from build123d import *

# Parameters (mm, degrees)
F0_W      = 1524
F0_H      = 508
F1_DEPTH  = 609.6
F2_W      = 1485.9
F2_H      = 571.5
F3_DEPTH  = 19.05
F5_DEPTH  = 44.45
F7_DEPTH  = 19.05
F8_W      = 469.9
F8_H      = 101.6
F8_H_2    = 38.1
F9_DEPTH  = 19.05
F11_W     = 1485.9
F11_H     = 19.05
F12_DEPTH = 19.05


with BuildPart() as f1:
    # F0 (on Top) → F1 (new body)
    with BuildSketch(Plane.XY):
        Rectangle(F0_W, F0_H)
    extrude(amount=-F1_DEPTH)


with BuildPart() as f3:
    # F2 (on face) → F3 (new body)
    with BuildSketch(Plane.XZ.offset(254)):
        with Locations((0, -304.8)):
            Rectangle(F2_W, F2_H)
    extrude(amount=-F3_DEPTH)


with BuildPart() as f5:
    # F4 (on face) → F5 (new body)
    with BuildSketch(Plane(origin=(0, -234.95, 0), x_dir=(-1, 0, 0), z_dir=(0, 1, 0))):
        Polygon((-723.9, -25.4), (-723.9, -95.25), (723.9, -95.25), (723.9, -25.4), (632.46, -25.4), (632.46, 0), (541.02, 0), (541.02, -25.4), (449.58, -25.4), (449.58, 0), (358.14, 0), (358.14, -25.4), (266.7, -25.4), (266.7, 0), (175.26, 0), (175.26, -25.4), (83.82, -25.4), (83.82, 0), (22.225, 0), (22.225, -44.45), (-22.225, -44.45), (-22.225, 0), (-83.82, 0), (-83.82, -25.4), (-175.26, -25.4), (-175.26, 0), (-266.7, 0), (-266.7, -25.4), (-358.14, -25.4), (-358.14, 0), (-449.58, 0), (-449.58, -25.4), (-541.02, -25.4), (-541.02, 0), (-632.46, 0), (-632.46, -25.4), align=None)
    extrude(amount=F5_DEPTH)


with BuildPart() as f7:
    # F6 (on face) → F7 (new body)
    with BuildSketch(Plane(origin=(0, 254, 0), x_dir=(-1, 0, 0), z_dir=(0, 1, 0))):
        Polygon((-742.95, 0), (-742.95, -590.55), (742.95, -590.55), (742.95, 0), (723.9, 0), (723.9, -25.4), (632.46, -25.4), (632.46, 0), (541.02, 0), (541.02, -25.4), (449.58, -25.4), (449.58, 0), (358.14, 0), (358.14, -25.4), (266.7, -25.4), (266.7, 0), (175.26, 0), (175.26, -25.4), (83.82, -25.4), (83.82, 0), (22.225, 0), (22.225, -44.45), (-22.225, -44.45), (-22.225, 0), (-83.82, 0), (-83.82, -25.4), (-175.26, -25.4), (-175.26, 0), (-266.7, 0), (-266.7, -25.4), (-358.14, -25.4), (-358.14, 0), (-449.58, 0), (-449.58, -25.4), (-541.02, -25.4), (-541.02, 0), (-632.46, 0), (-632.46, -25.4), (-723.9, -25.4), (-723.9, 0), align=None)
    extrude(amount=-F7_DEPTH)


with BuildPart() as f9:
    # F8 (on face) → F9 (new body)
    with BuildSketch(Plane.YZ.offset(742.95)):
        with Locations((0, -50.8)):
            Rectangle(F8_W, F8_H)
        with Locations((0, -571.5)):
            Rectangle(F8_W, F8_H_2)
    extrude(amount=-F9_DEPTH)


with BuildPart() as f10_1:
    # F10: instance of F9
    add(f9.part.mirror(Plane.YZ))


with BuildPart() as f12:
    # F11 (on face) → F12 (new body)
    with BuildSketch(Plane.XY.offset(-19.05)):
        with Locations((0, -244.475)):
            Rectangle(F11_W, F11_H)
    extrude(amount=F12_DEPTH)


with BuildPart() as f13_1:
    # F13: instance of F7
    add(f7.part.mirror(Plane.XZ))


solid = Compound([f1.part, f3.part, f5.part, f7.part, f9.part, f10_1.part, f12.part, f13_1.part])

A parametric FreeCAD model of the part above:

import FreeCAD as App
import Part
import Sketcher

V = App.Vector
Q = App.Units.Quantity

doc = App.newDocument("Part")
params = doc.addObject("Spreadsheet::Sheet", "Params")
for row, (alias, value) in enumerate([
    ("sketch1_width", "60 in"),
    ("sketch1_height", "20 in"),
    ("pad1_length", "24 in"),
    ("sketch2_width", "58.5 in"),
    ("sketch2_height", "22.5 in"),
    ("pad2_length", "0.75 in"),
    ("sketch3_width", "57 in"),
    ("sketch3_height", "1 in"),
    ("sketch3_width2", "3.6 in"),
    ("sketch3_width3", "1.75 in"),
    ("sketch3_height2", "2.75 in"),
    ("pad3_length", "1.75 in"),
    ("sketch4_height", "1 in"),
    ("sketch4_width", "58.5 in"),
    ("sketch4_width2", "3.6 in"),
    ("sketch4_width3", "0.75 in"),
    ("sketch4_width4", "1.75 in"),
    ("pad4_length", "0.75 in"),
    ("sketch5_height", "4 in"),
    ("sketch5_width", "18.5 in"),
    ("sketch5_height2", "1.5 in"),
    ("pad5_length", "0.75 in"),
    ("sketch6_width", "58.5 in"),
    ("sketch6_height", "0.75 in"),
    ("pad6_length", "0.75 in"),
], start=1):
    params.set(f"A{row}", alias)
    params.set(f"B{row}", "=" + value)
    params.setAlias(f"B{row}", alias)

body = doc.addObject("PartDesign::Body", "Body")

# Sketch on XY plane
sketch1 = body.newObject("Sketcher::SketchObject", "Sketch")
sketch1.AttachmentSupport = (doc.getObject("XY_Plane"), [""])
sketch1.MapMode = "FlatFace"
sketch1.addGeometry(Part.LineSegment(V(-762, 254, 0), V(-762, -254, 0)), False)
sketch1.addGeometry(Part.LineSegment(V(-762, -254, 0), V(762, -254, 0)), False)
sketch1.addGeometry(Part.LineSegment(V(762, -254, 0), V(762, 254, 0)), False)
sketch1.addGeometry(Part.LineSegment(V(762, 254, 0), V(-762, 254, 0)), False)
sketch1.addConstraint(Sketcher.Constraint("Coincident", 0, 2, 1, 1))
sketch1.addConstraint(Sketcher.Constraint("Coincident", 1, 2, 2, 1))
sketch1.addConstraint(Sketcher.Constraint("Coincident", 2, 2, 3, 1))
sketch1.addConstraint(Sketcher.Constraint("Coincident", 3, 2, 0, 1))
sketch1.addConstraint(Sketcher.Constraint("Vertical", 0))
sketch1.addConstraint(Sketcher.Constraint("Horizontal", 1))
sketch1.addConstraint(Sketcher.Constraint("Vertical", 2))
sketch1.addConstraint(Sketcher.Constraint("Horizontal", 3))
sketch1.addConstraint(Sketcher.Constraint("Symmetric", 0, 2, 2, 2, -1, 1))
sketch1.addConstraint(Sketcher.Constraint("DistanceX", 1, 1, 1, 2, Q("60 in")))
sketch1.addConstraint(Sketcher.Constraint("DistanceY", 0, 2, 0, 1, Q("20 in")))
sketch1.setExpression("Constraints[9]", "Params.sketch1_width")
sketch1.setExpression("Constraints[10]", "Params.sketch1_height")
pad1 = body.newObject("PartDesign::Pad", "Pad")
pad1.Profile = sketch1
pad1.setExpression("Length", "Params.pad1_length")
pad1.Reversed = True
body2 = doc.addObject("PartDesign::Body", "Body001")

# Sketch on XZ plane
sketch2 = body2.newObject("Sketcher::SketchObject", "Sketch001")
sketch2.AttachmentSupport = (doc.getObject("XZ_Plane001"), [""])
sketch2.MapMode = "FlatFace"
sketch2.AttachmentOffset = App.Placement(V(0, 0, 10 * 25.4), App.Rotation())
sketch2.addGeometry(Part.LineSegment(V(-742.95, -19.05, 0), V(-742.95, -590.55, 0)), False)
sketch2.addGeometry(Part.LineSegment(V(-742.95, -590.55, 0), V(742.95, -590.55, 0)), False)
sketch2.addGeometry(Part.LineSegment(V(742.95, -590.55, 0), V(742.95, -19.05, 0)), False)
sketch2.addGeometry(Part.LineSegment(V(742.95, -19.05, 0), V(-742.95, -19.05, 0)), False)
sketch2.addConstraint(Sketcher.Constraint("Coincident", 0, 2, 1, 1))
sketch2.addConstraint(Sketcher.Constraint("Coincident", 1, 2, 2, 1))
sketch2.addConstraint(Sketcher.Constraint("Coincident", 2, 2, 3, 1))
sketch2.addConstraint(Sketcher.Constraint("Coincident", 3, 2, 0, 1))
sketch2.addConstraint(Sketcher.Constraint("Vertical", 0))
sketch2.addConstraint(Sketcher.Constraint("Horizontal", 1))
sketch2.addConstraint(Sketcher.Constraint("Vertical", 2))
sketch2.addConstraint(Sketcher.Constraint("Horizontal", 3))
sketch2.addConstraint(Sketcher.Constraint("DistanceX", 1, 1, 1, 2, Q("58.5 in")))
sketch2.addConstraint(Sketcher.Constraint("DistanceY", 0, 2, 0, 1, Q("22.5 in")))
sketch2.addConstraint(Sketcher.Constraint("DistanceX", 0, 2, -1, 1, Q("29.25 in")))
sketch2.addConstraint(Sketcher.Constraint("DistanceY", 0, 2, -1, 1, Q("23.25 in")))
sketch2.setExpression("Constraints[8]", "Params.sketch2_width")
sketch2.setExpression("Constraints[9]", "Params.sketch2_height")
pad2 = body2.newObject("PartDesign::Pad", "Pad001")
pad2.Profile = sketch2
pad2.setExpression("Length", "Params.pad2_length")
pad2.Reversed = True
body3 = doc.addObject("PartDesign::Body", "Body002")

# Sketch on XZ plane
sketch3 = body3.newObject("Sketcher::SketchObject", "Sketch002")
sketch3.AttachmentSupport = (doc.getObject("XZ_Plane002"), [""])
sketch3.MapMode = "FlatFace"
sketch3.AttachmentOffset = App.Placement(V(0, 0, 9.25 * 25.4), App.Rotation())
sketch3.addGeometry(Part.LineSegment(V(723.9, -25.4, 0), V(723.9, -95.25, 0)), False)
sketch3.addGeometry(Part.LineSegment(V(723.9, -95.25, 0), V(-723.9, -95.25, 0)), False)
sketch3.addGeometry(Part.LineSegment(V(-723.9, -95.25, 0), V(-723.9, -25.4, 0)), False)
sketch3.addGeometry(Part.LineSegment(V(-723.9, -25.4, 0), V(-632.46, -25.4, 0)), False)
sketch3.addGeometry(Part.LineSegment(V(-632.46, -25.4, 0), V(-632.46, 0, 0)), False)
sketch3.addGeometry(Part.LineSegment(V(-632.46, 0, 0), V(-541.02, 0, 0)), False)
sketch3.addGeometry(Part.LineSegment(V(-541.02, 0, 0), V(-541.02, -25.4, 0)), False)
sketch3.addGeometry(Part.LineSegment(V(-541.02, -25.4, 0), V(-449.58, -25.4, 0)), False)
sketch3.addGeometry(Part.LineSegment(V(-449.58, -25.4, 0), V(-449.58, 0, 0)), False)
sketch3.addGeometry(Part.LineSegment(V(-449.58, 0, 0), V(-358.14, 0, 0)), False)
sketch3.addGeometry(Part.LineSegment(V(-358.14, 0, 0), V(-358.14, -25.4, 0)), False)
sketch3.addGeometry(Part.LineSegment(V(-358.14, -25.4, 0), V(-266.7, -25.4, 0)), False)
sketch3.addGeometry(Part.LineSegment(V(-266.7, -25.4, 0), V(-266.7, 0, 0)), False)
sketch3.addGeometry(Part.LineSegment(V(-266.7, 0, 0), V(-175.26, 0, 0)), False)
sketch3.addGeometry(Part.LineSegment(V(-175.26, 0, 0), V(-175.26, -25.4, 0)), False)
sketch3.addGeometry(Part.LineSegment(V(-175.26, -25.4, 0), V(-83.82, -25.4, 0)), False)
sketch3.addGeometry(Part.LineSegment(V(-83.82, -25.4, 0), V(-83.82, 0, 0)), False)
sketch3.addGeometry(Part.LineSegment(V(-83.82, 0, 0), V(-22.225, 0, 0)), False)
sketch3.addGeometry(Part.LineSegment(V(-22.225, 0, 0), V(-22.225, -44.45, 0)), False)
sketch3.addGeometry(Part.LineSegment(V(-22.225, -44.45, 0), V(22.225, -44.45, 0)), False)
sketch3.addGeometry(Part.LineSegment(V(22.225, -44.45, 0), V(22.225, 0, 0)), False)
sketch3.addGeometry(Part.LineSegment(V(22.225, 0, 0), V(83.82, 0, 0)), False)
sketch3.addGeometry(Part.LineSegment(V(83.82, 0, 0), V(83.82, -25.4, 0)), False)
sketch3.addGeometry(Part.LineSegment(V(83.82, -25.4, 0), V(175.26, -25.4, 0)), False)
sketch3.addGeometry(Part.LineSegment(V(175.26, -25.4, 0), V(175.26, 0, 0)), False)
sketch3.addGeometry(Part.LineSegment(V(175.26, 0, 0), V(266.7, 0, 0)), False)
sketch3.addGeometry(Part.LineSegment(V(266.7, 0, 0), V(266.7, -25.4, 0)), False)
sketch3.addGeometry(Part.LineSegment(V(266.7, -25.4, 0), V(358.14, -25.4, 0)), False)
sketch3.addGeometry(Part.LineSegment(V(358.14, -25.4, 0), V(358.14, 0, 0)), False)
sketch3.addGeometry(Part.LineSegment(V(358.14, 0, 0), V(449.58, 0, 0)), False)
sketch3.addGeometry(Part.LineSegment(V(449.58, 0, 0), V(449.58, -25.4, 0)), False)
sketch3.addGeometry(Part.LineSegment(V(449.58, -25.4, 0), V(541.02, -25.4, 0)), False)
sketch3.addGeometry(Part.LineSegment(V(541.02, -25.4, 0), V(541.02, 0, 0)), False)
sketch3.addGeometry(Part.LineSegment(V(541.02, 0, 0), V(632.46, 0, 0)), False)
sketch3.addGeometry(Part.LineSegment(V(632.46, 0, 0), V(632.46, -25.4, 0)), False)
sketch3.addGeometry(Part.LineSegment(V(632.46, -25.4, 0), V(723.9, -25.4, 0)), False)
sketch3.addConstraint(Sketcher.Constraint("Coincident", 0, 2, 1, 1))
sketch3.addConstraint(Sketcher.Constraint("Coincident", 1, 2, 2, 1))
sketch3.addConstraint(Sketcher.Constraint("Coincident", 2, 2, 3, 1))
sketch3.addConstraint(Sketcher.Constraint("Coincident", 3, 2, 4, 1))
sketch3.addConstraint(Sketcher.Constraint("Coincident", 4, 2, 5, 1))
sketch3.addConstraint(Sketcher.Constraint("Coincident", 5, 2, 6, 1))
sketch3.addConstraint(Sketcher.Constraint("Coincident", 6, 2, 7, 1))
sketch3.addConstraint(Sketcher.Constraint("Coincident", 7, 2, 8, 1))
sketch3.addConstraint(Sketcher.Constraint("Coincident", 8, 2, 9, 1))
sketch3.addConstraint(Sketcher.Constraint("Coincident", 9, 2, 10, 1))
sketch3.addConstraint(Sketcher.Constraint("Coincident", 10, 2, 11, 1))
sketch3.addConstraint(Sketcher.Constraint("Coincident", 11, 2, 12, 1))
sketch3.addConstraint(Sketcher.Constraint("Coincident", 12, 2, 13, 1))
sketch3.addConstraint(Sketcher.Constraint("Coincident", 13, 2, 14, 1))
sketch3.addConstraint(Sketcher.Constraint("Coincident", 14, 2, 15, 1))
sketch3.addConstraint(Sketcher.Constraint("Coincident", 15, 2, 16, 1))
sketch3.addConstraint(Sketcher.Constraint("Coincident", 16, 2, 17, 1))
sketch3.addConstraint(Sketcher.Constraint("Coincident", 17, 2, 18, 1))
sketch3.addConstraint(Sketcher.Constraint("Coincident", 18, 2, 19, 1))
sketch3.addConstraint(Sketcher.Constraint("Coincident", 19, 2, 20, 1))
sketch3.addConstraint(Sketcher.Constraint("Coincident", 20, 2, 21, 1))
sketch3.addConstraint(Sketcher.Constraint("Coincident", 21, 2, 22, 1))
sketch3.addConstraint(Sketcher.Constraint("Coincident", 22, 2, 23, 1))
sketch3.addConstraint(Sketcher.Constraint("Coincident", 23, 2, 24, 1))
sketch3.addConstraint(Sketcher.Constraint("Coincident", 24, 2, 25, 1))
sketch3.addConstraint(Sketcher.Constraint("Coincident", 25, 2, 26, 1))
sketch3.addConstraint(Sketcher.Constraint("Coincident", 26, 2, 27, 1))
sketch3.addConstraint(Sketcher.Constraint("Coincident", 27, 2, 28, 1))
sketch3.addConstraint(Sketcher.Constraint("Coincident", 28, 2, 29, 1))
sketch3.addConstraint(Sketcher.Constraint("Coincident", 29, 2, 30, 1))
sketch3.addConstraint(Sketcher.Constraint("Coincident", 30, 2, 31, 1))
sketch3.addConstraint(Sketcher.Constraint("Coincident", 31, 2, 32, 1))
sketch3.addConstraint(Sketcher.Constraint("Coincident", 32, 2, 33, 1))
sketch3.addConstraint(Sketcher.Constraint("Coincident", 33, 2, 34, 1))
sketch3.addConstraint(Sketcher.Constraint("Coincident", 34, 2, 35, 1))
sketch3.addConstraint(Sketcher.Constraint("Coincident", 35, 2, 0, 1))
sketch3.addConstraint(Sketcher.Constraint("Vertical", 0))
sketch3.addConstraint(Sketcher.Constraint("Horizontal", 1))
sketch3.addConstraint(Sketcher.Constraint("Vertical", 2))
sketch3.addConstraint(Sketcher.Constraint("Horizontal", 3))
sketch3.addConstraint(Sketcher.Constraint("Vertical", 4))
sketch3.addConstraint(Sketcher.Constraint("Horizontal", 5))
sketch3.addConstraint(Sketcher.Constraint("Vertical", 6))
sketch3.addConstraint(Sketcher.Constraint("Horizontal", 7))
sketch3.addConstraint(Sketcher.Constraint("Vertical", 8))
sketch3.addConstraint(Sketcher.Constraint("Horizontal", 9))
sketch3.addConstraint(Sketcher.Constraint("Vertical", 10))
sketch3.addConstraint(Sketcher.Constraint("Horizontal", 11))
sketch3.addConstraint(Sketcher.Constraint("Vertical", 12))
sketch3.addConstraint(Sketcher.Constraint("Horizontal", 13))
sketch3.addConstraint(Sketcher.Constraint("Vertical", 14))
sketch3.addConstraint(Sketcher.Constraint("Horizontal", 15))
sketch3.addConstraint(Sketcher.Constraint("Vertical", 16))
sketch3.addConstraint(Sketcher.Constraint("Horizontal", 17))
sketch3.addConstraint(Sketcher.Constraint("Vertical", 18))
sketch3.addConstraint(Sketcher.Constraint("Horizontal", 19))
sketch3.addConstraint(Sketcher.Constraint("Vertical", 20))
sketch3.addConstraint(Sketcher.Constraint("Horizontal", 21))
sketch3.addConstraint(Sketcher.Constraint("Vertical", 22))
sketch3.addConstraint(Sketcher.Constraint("Horizontal", 23))
sketch3.addConstraint(Sketcher.Constraint("Vertical", 24))
sketch3.addConstraint(Sketcher.Constraint("Horizontal", 25))
sketch3.addConstraint(Sketcher.Constraint("Vertical", 26))
sketch3.addConstraint(Sketcher.Constraint("Horizontal", 27))
sketch3.addConstraint(Sketcher.Constraint("Vertical", 28))
sketch3.addConstraint(Sketcher.Constraint("Horizontal", 29))
sketch3.addConstraint(Sketcher.Constraint("Vertical", 30))
sketch3.addConstraint(Sketcher.Constraint("Horizontal", 31))
sketch3.addConstraint(Sketcher.Constraint("Vertical", 32))
sketch3.addConstraint(Sketcher.Constraint("Horizontal", 33))
sketch3.addConstraint(Sketcher.Constraint("Vertical", 34))
sketch3.addConstraint(Sketcher.Constraint("Horizontal", 35))
sketch3.addConstraint(Sketcher.Constraint("Symmetric", 17, 2, 20, 2, -1, 1))
sketch3.addConstraint(Sketcher.Constraint("Symmetric", 13, 2, 24, 2, -1, 1))
sketch3.addConstraint(Sketcher.Constraint("Symmetric", 9, 2, 28, 2, -1, 1))
sketch3.addConstraint(Sketcher.Constraint("Symmetric", 5, 2, 32, 2, -1, 1))
sketch3.addConstraint(Sketcher.Constraint("Symmetric", 16, 2, 21, 2, -2))
sketch3.addConstraint(Sketcher.Constraint("Symmetric", 12, 2, 25, 2, -2))
sketch3.addConstraint(Sketcher.Constraint("Symmetric", 8, 2, 29, 2, -2))
sketch3.addConstraint(Sketcher.Constraint("Symmetric", 4, 2, 33, 2, -2))
sketch3.addConstraint(Sketcher.Constraint("Symmetric", 2, 2, 35, 2, -2))
sketch3.addConstraint(Sketcher.Constraint("Horizontal", 3, 2, 6, 2))
sketch3.addConstraint(Sketcher.Constraint("Horizontal", 7, 2, 10, 2))
sketch3.addConstraint(Sketcher.Constraint("Horizontal", 11, 2, 14, 2))
sketch3.addConstraint(Sketcher.Constraint("Horizontal", 15, 2, 22, 2))
sketch3.addConstraint(Sketcher.Constraint("Horizontal", 23, 2, 26, 2))
sketch3.addConstraint(Sketcher.Constraint("Horizontal", 27, 2, 30, 2))
sketch3.addConstraint(Sketcher.Constraint("Equal", 3, 5))
sketch3.addConstraint(Sketcher.Constraint("Equal", 5, 7))
sketch3.addConstraint(Sketcher.Constraint("Equal", 7, 9))
sketch3.addConstraint(Sketcher.Constraint("Equal", 9, 11))
sketch3.addConstraint(Sketcher.Constraint("Equal", 11, 13))
sketch3.addConstraint(Sketcher.Constraint("Equal", 13, 15))
sketch3.addConstraint(Sketcher.Constraint("Equal", 19, 18))
sketch3.addConstraint(Sketcher.Constraint("DistanceX", 1, 2, 1, 1, Q("57 in")))
sketch3.addConstraint(Sketcher.Constraint("DistanceY", 4, 1, 4, 2, Q("1 in")))
sketch3.addConstraint(Sketcher.Constraint("DistanceX", 3, 1, 3, 2, Q("3.6 in")))
sketch3.addConstraint(Sketcher.Constraint("DistanceX", 19, 1, 19, 2, Q("1.75 in")))
sketch3.addConstraint(Sketcher.Constraint("DistanceY", 0, 2, 0, 1, Q("2.75 in")))
sketch3.setExpression("Constraints[94]", "Params.sketch3_width")
sketch3.setExpression("Constraints[95]", "Params.sketch3_height")
sketch3.setExpression("Constraints[96]", "Params.sketch3_width2")
sketch3.setExpression("Constraints[97]", "Params.sketch3_width3")
sketch3.setExpression("Constraints[98]", "Params.sketch3_height2")
pad3 = body3.newObject("PartDesign::Pad", "Pad002")
pad3.Profile = sketch3
pad3.setExpression("Length", "Params.pad3_length")
pad3.Reversed = True
body4 = doc.addObject("PartDesign::Body", "Body003")

# Sketch on XZ plane
sketch4 = body4.newObject("Sketcher::SketchObject", "Sketch003")
sketch4.AttachmentSupport = (doc.getObject("XZ_Plane003"), [""])
sketch4.MapMode = "FlatFace"
sketch4.AttachmentOffset = App.Placement(V(0, 0, -10 * 25.4), App.Rotation())
sketch4.addGeometry(Part.LineSegment(V(742.95, 0, 0), V(742.95, -590.55, 0)), False)
sketch4.addGeometry(Part.LineSegment(V(742.95, -590.55, 0), V(-742.95, -590.55, 0)), False)
sketch4.addGeometry(Part.LineSegment(V(-742.95, -590.55, 0), V(-742.95, 0, 0)), False)
sketch4.addGeometry(Part.LineSegment(V(-742.95, 0, 0), V(-723.9, 0, 0)), False)
sketch4.addGeometry(Part.LineSegment(V(-723.9, 0, 0), V(-723.9, -25.4, 0)), False)
sketch4.addGeometry(Part.LineSegment(V(-723.9, -25.4, 0), V(-632.46, -25.4, 0)), False)
sketch4.addGeometry(Part.LineSegment(V(-632.46, -25.4, 0), V(-632.46, 0, 0)), False)
sketch4.addGeometry(Part.LineSegment(V(-632.46, 0, 0), V(-541.02, 0, 0)), False)
sketch4.addGeometry(Part.LineSegment(V(-541.02, 0, 0), V(-541.02, -25.4, 0)), False)
sketch4.addGeometry(Part.LineSegment(V(-541.02, -25.4, 0), V(-449.58, -25.4, 0)), False)
sketch4.addGeometry(Part.LineSegment(V(-449.58, -25.4, 0), V(-449.58, 0, 0)), False)
sketch4.addGeometry(Part.LineSegment(V(-449.58, 0, 0), V(-358.14, 0, 0)), False)
sketch4.addGeometry(Part.LineSegment(V(-358.14, 0, 0), V(-358.14, -25.4, 0)), False)
sketch4.addGeometry(Part.LineSegment(V(-358.14, -25.4, 0), V(-266.7, -25.4, 0)), False)
sketch4.addGeometry(Part.LineSegment(V(-266.7, -25.4, 0), V(-266.7, 0, 0)), False)
sketch4.addGeometry(Part.LineSegment(V(-266.7, 0, 0), V(-175.26, 0, 0)), False)
sketch4.addGeometry(Part.LineSegment(V(-175.26, 0, 0), V(-175.26, -25.4, 0)), False)
sketch4.addGeometry(Part.LineSegment(V(-175.26, -25.4, 0), V(-83.82, -25.4, 0)), False)
sketch4.addGeometry(Part.LineSegment(V(-83.82, -25.4, 0), V(-83.82, 0, 0)), False)
sketch4.addGeometry(Part.LineSegment(V(-83.82, 0, 0), V(-22.225, 0, 0)), False)
sketch4.addGeometry(Part.LineSegment(V(-22.225, 0, 0), V(-22.225, -44.45, 0)), False)
sketch4.addGeometry(Part.LineSegment(V(-22.225, -44.45, 0), V(22.225, -44.45, 0)), False)
sketch4.addGeometry(Part.LineSegment(V(22.225, -44.45, 0), V(22.225, 0, 0)), False)
sketch4.addGeometry(Part.LineSegment(V(22.225, 0, 0), V(83.82, 0, 0)), False)
sketch4.addGeometry(Part.LineSegment(V(83.82, 0, 0), V(83.82, -25.4, 0)), False)
sketch4.addGeometry(Part.LineSegment(V(83.82, -25.4, 0), V(175.26, -25.4, 0)), False)
sketch4.addGeometry(Part.LineSegment(V(175.26, -25.4, 0), V(175.26, 0, 0)), False)
sketch4.addGeometry(Part.LineSegment(V(175.26, 0, 0), V(266.7, 0, 0)), False)
sketch4.addGeometry(Part.LineSegment(V(266.7, 0, 0), V(266.7, -25.4, 0)), False)
sketch4.addGeometry(Part.LineSegment(V(266.7, -25.4, 0), V(358.14, -25.4, 0)), False)
sketch4.addGeometry(Part.LineSegment(V(358.14, -25.4, 0), V(358.14, 0, 0)), False)
sketch4.addGeometry(Part.LineSegment(V(358.14, 0, 0), V(449.58, 0, 0)), False)
sketch4.addGeometry(Part.LineSegment(V(449.58, 0, 0), V(449.58, -25.4, 0)), False)
sketch4.addGeometry(Part.LineSegment(V(449.58, -25.4, 0), V(541.02, -25.4, 0)), False)
sketch4.addGeometry(Part.LineSegment(V(541.02, -25.4, 0), V(541.02, 0, 0)), False)
sketch4.addGeometry(Part.LineSegment(V(541.02, 0, 0), V(632.46, 0, 0)), False)
sketch4.addGeometry(Part.LineSegment(V(632.46, 0, 0), V(632.46, -25.4, 0)), False)
sketch4.addGeometry(Part.LineSegment(V(632.46, -25.4, 0), V(723.9, -25.4, 0)), False)
sketch4.addGeometry(Part.LineSegment(V(723.9, -25.4, 0), V(723.9, 0, 0)), False)
sketch4.addGeometry(Part.LineSegment(V(723.9, 0, 0), V(742.95, 0, 0)), False)
sketch4.addConstraint(Sketcher.Constraint("Coincident", 0, 2, 1, 1))
sketch4.addConstraint(Sketcher.Constraint("Coincident", 1, 2, 2, 1))
sketch4.addConstraint(Sketcher.Constraint("Coincident", 2, 2, 3, 1))
sketch4.addConstraint(Sketcher.Constraint("Coincident", 3, 2, 4, 1))
sketch4.addConstraint(Sketcher.Constraint("Coincident", 4, 2, 5, 1))
sketch4.addConstraint(Sketcher.Constraint("Coincident", 5, 2, 6, 1))
sketch4.addConstraint(Sketcher.Constraint("Coincident", 6, 2, 7, 1))
sketch4.addConstraint(Sketcher.Constraint("Coincident", 7, 2, 8, 1))
sketch4.addConstraint(Sketcher.Constraint("Coincident", 8, 2, 9, 1))
sketch4.addConstraint(Sketcher.Constraint("Coincident", 9, 2, 10, 1))
sketch4.addConstraint(Sketcher.Constraint("Coincident", 10, 2, 11, 1))
sketch4.addConstraint(Sketcher.Constraint("Coincident", 11, 2, 12, 1))
sketch4.addConstraint(Sketcher.Constraint("Coincident", 12, 2, 13, 1))
sketch4.addConstraint(Sketcher.Constraint("Coincident", 13, 2, 14, 1))
sketch4.addConstraint(Sketcher.Constraint("Coincident", 14, 2, 15, 1))
sketch4.addConstraint(Sketcher.Constraint("Coincident", 15, 2, 16, 1))
sketch4.addConstraint(Sketcher.Constraint("Coincident", 16, 2, 17, 1))
sketch4.addConstraint(Sketcher.Constraint("Coincident", 17, 2, 18, 1))
sketch4.addConstraint(Sketcher.Constraint("Coincident", 18, 2, 19, 1))
sketch4.addConstraint(Sketcher.Constraint("Coincident", 19, 2, 20, 1))
sketch4.addConstraint(Sketcher.Constraint("Coincident", 20, 2, 21, 1))
sketch4.addConstraint(Sketcher.Constraint("Coincident", 21, 2, 22, 1))
sketch4.addConstraint(Sketcher.Constraint("Coincident", 22, 2, 23, 1))
sketch4.addConstraint(Sketcher.Constraint("Coincident", 23, 2, 24, 1))
sketch4.addConstraint(Sketcher.Constraint("Coincident", 24, 2, 25, 1))
sketch4.addConstraint(Sketcher.Constraint("Coincident", 25, 2, 26, 1))
sketch4.addConstraint(Sketcher.Constraint("Coincident", 26, 2, 27, 1))
sketch4.addConstraint(Sketcher.Constraint("Coincident", 27, 2, 28, 1))
sketch4.addConstraint(Sketcher.Constraint("Coincident", 28, 2, 29, 1))
sketch4.addConstraint(Sketcher.Constraint("Coincident", 29, 2, 30, 1))
sketch4.addConstraint(Sketcher.Constraint("Coincident", 30, 2, 31, 1))
sketch4.addConstraint(Sketcher.Constraint("Coincident", 31, 2, 32, 1))
sketch4.addConstraint(Sketcher.Constraint("Coincident", 32, 2, 33, 1))
sketch4.addConstraint(Sketcher.Constraint("Coincident", 33, 2, 34, 1))
sketch4.addConstraint(Sketcher.Constraint("Coincident", 34, 2, 35, 1))
sketch4.addConstraint(Sketcher.Constraint("Coincident", 35, 2, 36, 1))
sketch4.addConstraint(Sketcher.Constraint("Coincident", 36, 2, 37, 1))
sketch4.addConstraint(Sketcher.Constraint("Coincident", 37, 2, 38, 1))
sketch4.addConstraint(Sketcher.Constraint("Coincident", 38, 2, 39, 1))
sketch4.addConstraint(Sketcher.Constraint("Coincident", 39, 2, 0, 1))
sketch4.addConstraint(Sketcher.Constraint("Vertical", 0))
sketch4.addConstraint(Sketcher.Constraint("Horizontal", 1))
sketch4.addConstraint(Sketcher.Constraint("Vertical", 2))
sketch4.addConstraint(Sketcher.Constraint("Horizontal", 3))
sketch4.addConstraint(Sketcher.Constraint("Vertical", 4))
sketch4.addConstraint(Sketcher.Constraint("Horizontal", 5))
sketch4.addConstraint(Sketcher.Constraint("Vertical", 6))
sketch4.addConstraint(Sketcher.Constraint("Horizontal", 7))
sketch4.addConstraint(Sketcher.Constraint("Vertical", 8))
sketch4.addConstraint(Sketcher.Constraint("Horizontal", 9))
sketch4.addConstraint(Sketcher.Constraint("Vertical", 10))
sketch4.addConstraint(Sketcher.Constraint("Horizontal", 11))
sketch4.addConstraint(Sketcher.Constraint("Vertical", 12))
sketch4.addConstraint(Sketcher.Constraint("Horizontal", 13))
sketch4.addConstraint(Sketcher.Constraint("Vertical", 14))
sketch4.addConstraint(Sketcher.Constraint("Horizontal", 15))
sketch4.addConstraint(Sketcher.Constraint("Vertical", 16))
sketch4.addConstraint(Sketcher.Constraint("Horizontal", 17))
sketch4.addConstraint(Sketcher.Constraint("Vertical", 18))
sketch4.addConstraint(Sketcher.Constraint("Horizontal", 19))
sketch4.addConstraint(Sketcher.Constraint("Vertical", 20))
sketch4.addConstraint(Sketcher.Constraint("Horizontal", 21))
sketch4.addConstraint(Sketcher.Constraint("Vertical", 22))
sketch4.addConstraint(Sketcher.Constraint("Horizontal", 23))
sketch4.addConstraint(Sketcher.Constraint("Vertical", 24))
sketch4.addConstraint(Sketcher.Constraint("Horizontal", 25))
sketch4.addConstraint(Sketcher.Constraint("Vertical", 26))
sketch4.addConstraint(Sketcher.Constraint("Horizontal", 27))
sketch4.addConstraint(Sketcher.Constraint("Vertical", 28))
sketch4.addConstraint(Sketcher.Constraint("Horizontal", 29))
sketch4.addConstraint(Sketcher.Constraint("Vertical", 30))
sketch4.addConstraint(Sketcher.Constraint("Horizontal", 31))
sketch4.addConstraint(Sketcher.Constraint("Vertical", 32))
sketch4.addConstraint(Sketcher.Constraint("Horizontal", 33))
sketch4.addConstraint(Sketcher.Constraint("Vertical", 34))
sketch4.addConstraint(Sketcher.Constraint("Horizontal", 35))
sketch4.addConstraint(Sketcher.Constraint("Vertical", 36))
sketch4.addConstraint(Sketcher.Constraint("Horizontal", 37))
sketch4.addConstraint(Sketcher.Constraint("Vertical", 38))
sketch4.addConstraint(Sketcher.Constraint("Horizontal", 39))
sketch4.addConstraint(Sketcher.Constraint("Symmetric", 19, 2, 22, 2, -1, 1))
sketch4.addConstraint(Sketcher.Constraint("Symmetric", 15, 2, 26, 2, -1, 1))
sketch4.addConstraint(Sketcher.Constraint("Symmetric", 11, 2, 30, 2, -1, 1))
sketch4.addConstraint(Sketcher.Constraint("Symmetric", 7, 2, 34, 2, -1, 1))
sketch4.addConstraint(Sketcher.Constraint("Symmetric", 3, 2, 38, 2, -1, 1))
sketch4.addConstraint(Sketcher.Constraint("Symmetric", 18, 2, 23, 2, -2))
sketch4.addConstraint(Sketcher.Constraint("Symmetric", 14, 2, 27, 2, -2))
sketch4.addConstraint(Sketcher.Constraint("Symmetric", 10, 2, 31, 2, -2))
sketch4.addConstraint(Sketcher.Constraint("Symmetric", 6, 2, 35, 2, -2))
sketch4.addConstraint(Sketcher.Constraint("Symmetric", 2, 2, 39, 2, -2))
sketch4.addConstraint(Sketcher.Constraint("Horizontal", 5, 2, 8, 2))
sketch4.addConstraint(Sketcher.Constraint("Horizontal", 9, 2, 12, 2))
sketch4.addConstraint(Sketcher.Constraint("Horizontal", 13, 2, 16, 2))
sketch4.addConstraint(Sketcher.Constraint("Horizontal", 17, 2, 24, 2))
sketch4.addConstraint(Sketcher.Constraint("Horizontal", 25, 2, 28, 2))
sketch4.addConstraint(Sketcher.Constraint("Horizontal", 29, 2, 32, 2))
sketch4.addConstraint(Sketcher.Constraint("Horizontal", 33, 2, 36, 2))
sketch4.addConstraint(Sketcher.Constraint("Equal", 5, 7))
sketch4.addConstraint(Sketcher.Constraint("Equal", 7, 9))
sketch4.addConstraint(Sketcher.Constraint("Equal", 9, 11))
sketch4.addConstraint(Sketcher.Constraint("Equal", 11, 13))
sketch4.addConstraint(Sketcher.Constraint("Equal", 13, 15))
sketch4.addConstraint(Sketcher.Constraint("Equal", 15, 17))
sketch4.addConstraint(Sketcher.Constraint("Equal", 21, 20))
sketch4.addConstraint(Sketcher.Constraint("DistanceY", 4, 2, 4, 1, Q("1 in")))
sketch4.addConstraint(Sketcher.Constraint("DistanceX", 1, 2, 1, 1, Q("58.5 in")))
sketch4.addConstraint(Sketcher.Constraint("DistanceX", 5, 1, 5, 2, Q("3.6 in")))
sketch4.addConstraint(Sketcher.Constraint("DistanceX", 3, 1, 3, 2, Q("0.75 in")))
sketch4.addConstraint(Sketcher.Constraint("DistanceX", 21, 1, 21, 2, Q("1.75 in")))
sketch4.addConstraint(Sketcher.Constraint("DistanceY", 0, 2, 0, 1, Q("23.25 in")))
sketch4.setExpression("Constraints[104]", "Params.sketch4_height")
sketch4.setExpression("Constraints[105]", "Params.sketch4_width")
sketch4.setExpression("Constraints[106]", "Params.sketch4_width2")
sketch4.setExpression("Constraints[107]", "Params.sketch4_width3")
sketch4.setExpression("Constraints[108]", "Params.sketch4_width4")
pad4 = body4.newObject("PartDesign::Pad", "Pad003")
pad4.Profile = sketch4
pad4.setExpression("Length", "Params.pad4_length")
body5 = doc.addObject("PartDesign::Body", "Body004")
body5.AllowCompound = True

# Sketch on YZ plane
sketch5 = body5.newObject("Sketcher::SketchObject", "Sketch004")
sketch5.AttachmentSupport = (doc.getObject("YZ_Plane004"), [""])
sketch5.MapMode = "FlatFace"
sketch5.AttachmentOffset = App.Placement(V(0, 0, 29.25 * 25.4), App.Rotation())
sketch5.addGeometry(Part.LineSegment(V(-234.95, 0, 0), V(-234.95, -101.6, 0)), False)
sketch5.addGeometry(Part.LineSegment(V(-234.95, -101.6, 0), V(234.95, -101.6, 0)), False)
sketch5.addGeometry(Part.LineSegment(V(234.95, -101.6, 0), V(234.95, 0, 0)), False)
sketch5.addGeometry(Part.LineSegment(V(234.95, 0, 0), V(-234.95, 0, 0)), False)
sketch5.addGeometry(Part.LineSegment(V(-234.95, -552.45, 0), V(-234.95, -590.55, 0)), False)
sketch5.addGeometry(Part.LineSegment(V(-234.95, -590.55, 0), V(234.95, -590.55, 0)), False)
sketch5.addGeometry(Part.LineSegment(V(234.95, -590.55, 0), V(234.95, -552.45, 0)), False)
sketch5.addGeometry(Part.LineSegment(V(234.95, -552.45, 0), V(-234.95, -552.45, 0)), False)
sketch5.addConstraint(Sketcher.Constraint("Coincident", 0, 2, 1, 1))
sketch5.addConstraint(Sketcher.Constraint("Coincident", 1, 2, 2, 1))
sketch5.addConstraint(Sketcher.Constraint("Coincident", 2, 2, 3, 1))
sketch5.addConstraint(Sketcher.Constraint("Coincident", 3, 2, 0, 1))
sketch5.addConstraint(Sketcher.Constraint("Coincident", 4, 2, 5, 1))
sketch5.addConstraint(Sketcher.Constraint("Coincident", 5, 2, 6, 1))
sketch5.addConstraint(Sketcher.Constraint("Coincident", 6, 2, 7, 1))
sketch5.addConstraint(Sketcher.Constraint("Coincident", 7, 2, 4, 1))
sketch5.addConstraint(Sketcher.Constraint("Vertical", 0))
sketch5.addConstraint(Sketcher.Constraint("Horizontal", 1))
sketch5.addConstraint(Sketcher.Constraint("Vertical", 2))
sketch5.addConstraint(Sketcher.Constraint("Horizontal", 3))
sketch5.addConstraint(Sketcher.Constraint("Vertical", 4))
sketch5.addConstraint(Sketcher.Constraint("Horizontal", 5))
sketch5.addConstraint(Sketcher.Constraint("Vertical", 6))
sketch5.addConstraint(Sketcher.Constraint("Horizontal", 7))
sketch5.addConstraint(Sketcher.Constraint("Symmetric", 2, 2, 3, 2, -1, 1))
sketch5.addConstraint(Sketcher.Constraint("Vertical", 3, 2, 4, 2))
sketch5.addConstraint(Sketcher.Constraint("Vertical", 2, 2, 5, 2))
sketch5.addConstraint(Sketcher.Constraint("DistanceY", 0, 2, 0, 1, Q("4 in")))
sketch5.addConstraint(Sketcher.Constraint("DistanceX", 1, 1, 1, 2, Q("18.5 in")))
sketch5.addConstraint(Sketcher.Constraint("DistanceY", 4, 2, 4, 1, Q("1.5 in")))
sketch5.addConstraint(Sketcher.Constraint("DistanceY", 4, 2, -1, 1, Q("23.25 in")))
sketch5.setExpression("Constraints[19]", "Params.sketch5_height")
sketch5.setExpression("Constraints[20]", "Params.sketch5_width")
sketch5.setExpression("Constraints[21]", "Params.sketch5_height2")
pad5 = body5.newObject("PartDesign::Pad", "Pad004")
pad5.Profile = sketch5
pad5.setExpression("Length", "Params.pad5_length")
pad5.Reversed = True
body6 = doc.addObject("PartDesign::Body", "Body005")
body6.AllowCompound = True
doc.recompute()

mirroring = doc.addObject("Part::Mirroring", "Mirroring")
mirroring.Source = body5
mirroring.Base = V(0, 0, 0)
mirroring.Normal = V(1, 0, 0)
body6.BaseFeature = mirroring
doc.recompute()
body7 = doc.addObject("PartDesign::Body", "Body006")

# Sketch on XY plane
sketch6 = body7.newObject("Sketcher::SketchObject", "Sketch005")
sketch6.AttachmentSupport = (doc.getObject("XY_Plane006"), [""])
sketch6.MapMode = "FlatFace"
sketch6.AttachmentOffset = App.Placement(V(0, 0, -0.75 * 25.4), App.Rotation())
sketch6.addGeometry(Part.LineSegment(V(-742.95, -234.95, 0), V(-742.95, -254, 0)), False)
sketch6.addGeometry(Part.LineSegment(V(-742.95, -254, 0), V(742.95, -254, 0)), False)
sketch6.addGeometry(Part.LineSegment(V(742.95, -254, 0), V(742.95, -234.95, 0)), False)
sketch6.addGeometry(Part.LineSegment(V(742.95, -234.95, 0), V(-742.95, -234.95, 0)), False)
sketch6.addConstraint(Sketcher.Constraint("Coincident", 0, 2, 1, 1))
sketch6.addConstraint(Sketcher.Constraint("Coincident", 1, 2, 2, 1))
sketch6.addConstraint(Sketcher.Constraint("Coincident", 2, 2, 3, 1))
sketch6.addConstraint(Sketcher.Constraint("Coincident", 3, 2, 0, 1))
sketch6.addConstraint(Sketcher.Constraint("Vertical", 0))
sketch6.addConstraint(Sketcher.Constraint("Horizontal", 1))
sketch6.addConstraint(Sketcher.Constraint("Vertical", 2))
sketch6.addConstraint(Sketcher.Constraint("Horizontal", 3))
sketch6.addConstraint(Sketcher.Constraint("DistanceX", 1, 1, 1, 2, Q("58.5 in")))
sketch6.addConstraint(Sketcher.Constraint("DistanceY", 0, 2, -1, 1, Q("10 in")))
sketch6.addConstraint(Sketcher.Constraint("DistanceY", 0, 2, 0, 1, Q("0.75 in")))
sketch6.addConstraint(Sketcher.Constraint("DistanceX", 0, 2, -1, 1, Q("29.25 in")))
sketch6.setExpression("Constraints[8]", "Params.sketch6_width")
sketch6.setExpression("Constraints[10]", "Params.sketch6_height")
pad6 = body7.newObject("PartDesign::Pad", "Pad005")
pad6.Profile = sketch6
pad6.setExpression("Length", "Params.pad6_length")
body8 = doc.addObject("PartDesign::Body", "Body007")
doc.recompute()

mirroring2 = doc.addObject("Part::Mirroring", "Mirroring001")
mirroring2.Source = body4
mirroring2.Base = V(0, 0, 0)
mirroring2.Normal = V(0, -1, 0)
body8.BaseFeature = mirroring2
doc.recompute()
mirroring.Visibility = False
mirroring2.Visibility = False

doc.recompute()
